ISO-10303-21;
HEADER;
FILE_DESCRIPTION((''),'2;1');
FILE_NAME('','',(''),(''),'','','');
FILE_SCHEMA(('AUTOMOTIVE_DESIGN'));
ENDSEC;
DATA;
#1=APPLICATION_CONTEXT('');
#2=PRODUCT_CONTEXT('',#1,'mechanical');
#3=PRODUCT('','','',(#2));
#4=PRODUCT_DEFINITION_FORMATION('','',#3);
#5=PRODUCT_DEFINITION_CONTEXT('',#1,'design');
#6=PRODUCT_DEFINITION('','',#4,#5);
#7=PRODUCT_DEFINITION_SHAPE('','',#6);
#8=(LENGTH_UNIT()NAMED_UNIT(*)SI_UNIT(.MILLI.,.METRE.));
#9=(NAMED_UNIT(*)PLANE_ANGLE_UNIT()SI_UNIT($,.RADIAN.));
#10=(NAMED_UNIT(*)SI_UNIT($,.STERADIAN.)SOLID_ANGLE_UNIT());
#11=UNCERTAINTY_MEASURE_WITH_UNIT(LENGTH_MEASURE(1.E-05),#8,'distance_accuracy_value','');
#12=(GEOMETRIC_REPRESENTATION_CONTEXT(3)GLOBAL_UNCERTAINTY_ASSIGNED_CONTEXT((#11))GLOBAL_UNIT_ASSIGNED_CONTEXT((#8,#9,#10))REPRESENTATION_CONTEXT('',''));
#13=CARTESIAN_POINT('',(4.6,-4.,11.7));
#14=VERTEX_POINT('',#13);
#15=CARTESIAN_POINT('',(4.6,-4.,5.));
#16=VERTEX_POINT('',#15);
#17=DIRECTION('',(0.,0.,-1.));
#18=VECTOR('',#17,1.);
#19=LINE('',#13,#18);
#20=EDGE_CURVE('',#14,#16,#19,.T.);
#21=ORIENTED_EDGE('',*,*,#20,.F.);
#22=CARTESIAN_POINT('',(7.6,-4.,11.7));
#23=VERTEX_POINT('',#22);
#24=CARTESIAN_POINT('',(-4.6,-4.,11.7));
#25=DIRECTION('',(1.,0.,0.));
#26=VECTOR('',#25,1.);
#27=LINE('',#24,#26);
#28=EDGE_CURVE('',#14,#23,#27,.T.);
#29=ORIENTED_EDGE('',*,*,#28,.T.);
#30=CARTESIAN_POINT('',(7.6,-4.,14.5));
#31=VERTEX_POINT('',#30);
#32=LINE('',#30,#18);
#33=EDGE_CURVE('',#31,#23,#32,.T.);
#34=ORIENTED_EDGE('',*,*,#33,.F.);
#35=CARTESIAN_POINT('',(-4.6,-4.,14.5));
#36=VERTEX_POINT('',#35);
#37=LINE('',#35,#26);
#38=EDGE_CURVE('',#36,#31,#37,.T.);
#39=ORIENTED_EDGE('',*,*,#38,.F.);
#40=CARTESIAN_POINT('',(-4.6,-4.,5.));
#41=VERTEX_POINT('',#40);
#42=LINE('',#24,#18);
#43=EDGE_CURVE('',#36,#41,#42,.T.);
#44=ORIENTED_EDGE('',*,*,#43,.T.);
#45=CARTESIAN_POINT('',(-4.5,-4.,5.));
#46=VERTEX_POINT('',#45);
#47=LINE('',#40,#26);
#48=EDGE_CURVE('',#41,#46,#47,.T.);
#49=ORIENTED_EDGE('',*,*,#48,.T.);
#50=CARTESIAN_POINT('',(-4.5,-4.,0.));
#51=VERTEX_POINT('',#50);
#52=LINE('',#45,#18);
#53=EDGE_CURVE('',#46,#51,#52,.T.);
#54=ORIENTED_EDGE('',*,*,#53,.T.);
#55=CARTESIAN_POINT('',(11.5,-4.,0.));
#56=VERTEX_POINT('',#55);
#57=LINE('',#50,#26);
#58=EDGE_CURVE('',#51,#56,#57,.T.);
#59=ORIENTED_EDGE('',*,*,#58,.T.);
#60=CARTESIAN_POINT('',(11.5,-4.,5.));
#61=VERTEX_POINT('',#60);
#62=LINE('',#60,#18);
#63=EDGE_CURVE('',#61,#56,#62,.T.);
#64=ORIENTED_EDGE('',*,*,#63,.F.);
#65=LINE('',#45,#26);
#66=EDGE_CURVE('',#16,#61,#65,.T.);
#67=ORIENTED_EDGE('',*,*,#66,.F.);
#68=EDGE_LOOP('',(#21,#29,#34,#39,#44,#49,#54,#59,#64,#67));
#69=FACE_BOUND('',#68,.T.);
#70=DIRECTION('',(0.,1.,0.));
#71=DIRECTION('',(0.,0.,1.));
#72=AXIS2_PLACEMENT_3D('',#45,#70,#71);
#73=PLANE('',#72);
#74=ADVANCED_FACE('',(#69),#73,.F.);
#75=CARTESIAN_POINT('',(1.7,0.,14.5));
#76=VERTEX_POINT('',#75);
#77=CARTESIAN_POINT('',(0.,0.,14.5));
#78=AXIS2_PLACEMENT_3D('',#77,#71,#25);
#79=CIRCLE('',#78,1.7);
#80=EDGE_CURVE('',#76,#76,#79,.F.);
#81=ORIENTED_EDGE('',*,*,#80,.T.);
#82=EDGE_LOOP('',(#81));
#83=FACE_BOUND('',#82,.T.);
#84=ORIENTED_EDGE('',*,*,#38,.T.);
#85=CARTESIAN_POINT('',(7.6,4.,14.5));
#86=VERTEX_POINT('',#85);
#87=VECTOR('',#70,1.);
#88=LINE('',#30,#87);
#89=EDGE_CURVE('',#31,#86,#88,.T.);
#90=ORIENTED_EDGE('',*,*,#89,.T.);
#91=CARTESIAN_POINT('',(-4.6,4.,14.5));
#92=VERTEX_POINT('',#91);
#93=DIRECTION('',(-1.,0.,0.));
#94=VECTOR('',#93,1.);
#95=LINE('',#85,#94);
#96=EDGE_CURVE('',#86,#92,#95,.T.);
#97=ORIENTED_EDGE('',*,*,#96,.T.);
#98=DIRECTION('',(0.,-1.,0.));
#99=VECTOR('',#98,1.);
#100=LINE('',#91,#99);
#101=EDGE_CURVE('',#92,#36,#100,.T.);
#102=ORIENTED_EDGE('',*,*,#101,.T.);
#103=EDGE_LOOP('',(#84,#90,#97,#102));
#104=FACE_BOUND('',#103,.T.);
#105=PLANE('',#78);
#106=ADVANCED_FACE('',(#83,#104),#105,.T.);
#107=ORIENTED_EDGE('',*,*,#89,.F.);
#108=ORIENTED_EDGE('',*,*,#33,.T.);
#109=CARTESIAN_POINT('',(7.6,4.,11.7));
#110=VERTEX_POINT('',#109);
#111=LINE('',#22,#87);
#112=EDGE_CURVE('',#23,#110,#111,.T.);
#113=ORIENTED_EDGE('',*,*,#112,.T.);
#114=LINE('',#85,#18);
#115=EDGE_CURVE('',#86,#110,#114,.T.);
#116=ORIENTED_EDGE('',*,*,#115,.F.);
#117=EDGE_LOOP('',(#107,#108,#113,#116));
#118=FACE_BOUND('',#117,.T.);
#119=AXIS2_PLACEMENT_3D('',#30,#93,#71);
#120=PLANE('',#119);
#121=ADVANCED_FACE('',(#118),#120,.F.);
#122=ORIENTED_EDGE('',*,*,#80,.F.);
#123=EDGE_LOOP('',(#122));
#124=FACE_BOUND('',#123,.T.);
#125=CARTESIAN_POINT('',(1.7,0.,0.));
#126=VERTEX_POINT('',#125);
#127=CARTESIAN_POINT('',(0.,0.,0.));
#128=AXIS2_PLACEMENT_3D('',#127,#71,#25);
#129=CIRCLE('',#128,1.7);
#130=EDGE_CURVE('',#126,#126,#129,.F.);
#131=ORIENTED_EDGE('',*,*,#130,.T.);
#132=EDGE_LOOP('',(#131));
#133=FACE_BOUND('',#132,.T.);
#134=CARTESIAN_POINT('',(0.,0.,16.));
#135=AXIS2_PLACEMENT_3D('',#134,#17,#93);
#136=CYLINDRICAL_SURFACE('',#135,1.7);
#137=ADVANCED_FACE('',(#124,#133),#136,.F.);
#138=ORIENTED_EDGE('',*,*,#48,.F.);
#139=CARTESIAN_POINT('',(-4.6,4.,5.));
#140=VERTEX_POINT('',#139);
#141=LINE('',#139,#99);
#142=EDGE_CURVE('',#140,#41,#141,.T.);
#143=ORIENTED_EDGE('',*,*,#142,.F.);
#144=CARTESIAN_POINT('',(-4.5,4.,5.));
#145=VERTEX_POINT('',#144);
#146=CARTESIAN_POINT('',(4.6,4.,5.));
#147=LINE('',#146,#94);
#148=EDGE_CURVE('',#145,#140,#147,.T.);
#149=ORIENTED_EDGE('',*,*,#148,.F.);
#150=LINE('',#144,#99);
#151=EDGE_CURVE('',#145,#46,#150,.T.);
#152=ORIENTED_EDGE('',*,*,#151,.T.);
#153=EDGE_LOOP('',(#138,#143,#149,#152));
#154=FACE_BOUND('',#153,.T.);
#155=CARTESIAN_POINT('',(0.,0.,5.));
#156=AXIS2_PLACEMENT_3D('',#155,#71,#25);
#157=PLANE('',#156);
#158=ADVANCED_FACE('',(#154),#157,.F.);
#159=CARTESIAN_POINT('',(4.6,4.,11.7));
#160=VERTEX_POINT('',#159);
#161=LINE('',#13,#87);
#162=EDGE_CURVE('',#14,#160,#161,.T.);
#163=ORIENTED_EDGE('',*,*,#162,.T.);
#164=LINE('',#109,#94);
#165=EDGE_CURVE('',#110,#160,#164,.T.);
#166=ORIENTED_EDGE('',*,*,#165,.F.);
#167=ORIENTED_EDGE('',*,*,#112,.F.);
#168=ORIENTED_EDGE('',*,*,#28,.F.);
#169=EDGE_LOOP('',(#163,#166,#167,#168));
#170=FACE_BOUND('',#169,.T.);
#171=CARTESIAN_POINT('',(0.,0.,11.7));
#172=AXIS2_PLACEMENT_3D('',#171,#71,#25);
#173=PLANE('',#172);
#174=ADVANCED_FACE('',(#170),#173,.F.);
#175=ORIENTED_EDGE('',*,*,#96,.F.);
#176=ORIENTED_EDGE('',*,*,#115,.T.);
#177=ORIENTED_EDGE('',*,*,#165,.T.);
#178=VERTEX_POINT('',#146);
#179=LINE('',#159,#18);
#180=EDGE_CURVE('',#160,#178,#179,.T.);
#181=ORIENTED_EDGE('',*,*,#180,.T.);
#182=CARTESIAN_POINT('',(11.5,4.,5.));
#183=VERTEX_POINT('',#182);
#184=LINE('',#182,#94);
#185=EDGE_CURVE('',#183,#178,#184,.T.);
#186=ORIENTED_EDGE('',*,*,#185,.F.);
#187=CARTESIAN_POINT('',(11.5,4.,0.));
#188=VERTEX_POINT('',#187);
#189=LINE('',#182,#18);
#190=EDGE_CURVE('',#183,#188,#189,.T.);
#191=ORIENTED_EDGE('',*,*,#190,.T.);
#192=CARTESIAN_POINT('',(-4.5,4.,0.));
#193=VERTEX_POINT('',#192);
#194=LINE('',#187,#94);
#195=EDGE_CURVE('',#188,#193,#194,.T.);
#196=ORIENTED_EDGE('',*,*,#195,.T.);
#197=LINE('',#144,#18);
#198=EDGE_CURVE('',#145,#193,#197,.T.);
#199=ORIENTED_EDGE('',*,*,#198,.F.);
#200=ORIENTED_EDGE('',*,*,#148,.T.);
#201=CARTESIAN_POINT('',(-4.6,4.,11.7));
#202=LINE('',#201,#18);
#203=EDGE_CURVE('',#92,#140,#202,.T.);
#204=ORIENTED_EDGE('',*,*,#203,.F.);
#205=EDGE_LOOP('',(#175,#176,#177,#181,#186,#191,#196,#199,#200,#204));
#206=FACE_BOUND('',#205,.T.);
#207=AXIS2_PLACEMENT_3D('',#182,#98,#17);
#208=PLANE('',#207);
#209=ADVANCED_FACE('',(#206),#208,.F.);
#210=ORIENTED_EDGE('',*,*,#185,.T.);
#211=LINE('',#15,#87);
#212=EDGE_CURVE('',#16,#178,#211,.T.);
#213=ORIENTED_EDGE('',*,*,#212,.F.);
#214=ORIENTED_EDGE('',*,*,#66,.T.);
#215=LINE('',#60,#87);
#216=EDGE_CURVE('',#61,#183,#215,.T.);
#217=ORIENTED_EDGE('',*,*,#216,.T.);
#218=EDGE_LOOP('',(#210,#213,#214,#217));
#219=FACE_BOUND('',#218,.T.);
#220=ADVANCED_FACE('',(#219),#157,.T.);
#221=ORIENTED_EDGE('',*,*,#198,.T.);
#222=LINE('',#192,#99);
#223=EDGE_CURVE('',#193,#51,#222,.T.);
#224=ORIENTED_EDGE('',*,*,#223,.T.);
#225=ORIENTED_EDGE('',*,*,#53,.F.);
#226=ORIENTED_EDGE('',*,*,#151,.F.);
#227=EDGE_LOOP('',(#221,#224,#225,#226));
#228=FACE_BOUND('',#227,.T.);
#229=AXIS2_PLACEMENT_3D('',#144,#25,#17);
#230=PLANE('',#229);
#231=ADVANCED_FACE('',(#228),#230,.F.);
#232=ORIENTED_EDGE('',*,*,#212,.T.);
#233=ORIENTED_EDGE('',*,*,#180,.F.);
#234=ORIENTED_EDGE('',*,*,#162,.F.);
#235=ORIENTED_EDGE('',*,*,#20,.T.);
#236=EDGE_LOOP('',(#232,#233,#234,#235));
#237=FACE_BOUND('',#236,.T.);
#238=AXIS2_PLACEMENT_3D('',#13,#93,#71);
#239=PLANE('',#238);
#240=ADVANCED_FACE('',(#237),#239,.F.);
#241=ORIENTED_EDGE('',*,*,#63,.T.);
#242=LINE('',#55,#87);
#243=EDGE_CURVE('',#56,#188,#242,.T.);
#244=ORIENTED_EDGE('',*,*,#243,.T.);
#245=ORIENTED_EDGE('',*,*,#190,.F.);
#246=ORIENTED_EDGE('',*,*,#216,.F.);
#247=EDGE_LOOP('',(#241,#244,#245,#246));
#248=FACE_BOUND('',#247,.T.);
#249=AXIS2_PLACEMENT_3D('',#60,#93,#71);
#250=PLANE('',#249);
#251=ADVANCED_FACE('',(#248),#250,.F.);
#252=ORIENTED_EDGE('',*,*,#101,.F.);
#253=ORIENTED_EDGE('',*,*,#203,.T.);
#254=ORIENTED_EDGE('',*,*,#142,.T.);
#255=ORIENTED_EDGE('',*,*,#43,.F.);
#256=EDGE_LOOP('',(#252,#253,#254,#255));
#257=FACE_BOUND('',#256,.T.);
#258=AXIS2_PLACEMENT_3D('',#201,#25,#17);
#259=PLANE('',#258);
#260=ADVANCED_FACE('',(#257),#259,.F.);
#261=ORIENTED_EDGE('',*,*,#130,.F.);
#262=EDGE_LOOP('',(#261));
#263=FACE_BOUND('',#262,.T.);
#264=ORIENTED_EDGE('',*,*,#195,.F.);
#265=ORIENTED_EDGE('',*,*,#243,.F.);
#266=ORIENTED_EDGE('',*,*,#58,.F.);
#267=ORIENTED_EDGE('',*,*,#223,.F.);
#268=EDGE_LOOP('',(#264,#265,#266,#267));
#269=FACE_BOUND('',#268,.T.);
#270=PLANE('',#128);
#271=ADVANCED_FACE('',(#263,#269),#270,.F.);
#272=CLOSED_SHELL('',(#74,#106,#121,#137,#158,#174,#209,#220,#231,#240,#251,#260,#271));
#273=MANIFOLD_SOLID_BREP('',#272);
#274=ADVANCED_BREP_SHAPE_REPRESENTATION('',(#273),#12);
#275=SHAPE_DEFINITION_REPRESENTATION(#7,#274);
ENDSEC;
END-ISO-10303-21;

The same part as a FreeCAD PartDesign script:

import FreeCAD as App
import Part
import Sketcher
from FreeCAD import Vector


def add_polygon(sketch, points):
    """Adds a closed chain of lines whose ends are joined by coincident constraints."""
    first, n = sketch.GeometryCount, len(points)
    for a, b in zip(points, points[1:] + points[:1]):
        sketch.addGeometry(Part.LineSegment(App.Vector(*a, 0), App.Vector(*b, 0)), False)
    for i in range(n):
        sketch.addConstraint(Sketcher.Constraint("Coincident", first + i, 2, first + (i + 1) % n, 1))

doc = App.newDocument("Part")
body = doc.addObject("PartDesign::Body", "Body")

# Sketch on XY plane
sketch1 = body.newObject("Sketcher::SketchObject", "Sketch")
sketch1.AttachmentSupport = (doc.getObject("XY_Plane"), [""])
sketch1.MapMode = "FlatFace"
add_polygon(sketch1, [(-4, 4), (-4, -4), (12, -4), (12, 4)])  # lines 0-3
sketch1.addConstraint([
    Sketcher.Constraint("Vertical", 0),
    Sketcher.Constraint("Horizontal", 1),
    Sketcher.Constraint("Vertical", 2),
    Sketcher.Constraint("Horizontal", 3),
    Sketcher.Constraint("DistanceX", 1, 1, 1, 2, 16.0),
    Sketcher.Constraint("DistanceY", 0, 2, 0, 1, 8.0),
    Sketcher.Constraint("DistanceY", 0, 2, -1, 1, 4.0),
    Sketcher.Constraint("DistanceX", 0, 2, -1, 1, 4.5),
])
pad1 = body.newObject("PartDesign::Pad", "Pad")
pad1.Profile = sketch1
pad1.Length = 5

# Sketch on XY plane
sketch2 = body.newObject("Sketcher::SketchObject", "Sketch001")
sketch2.AttachmentSupport = (doc.getObject("XY_Plane"), [""])
sketch2.MapMode = "FlatFace"
sketch2.AttachmentOffset = App.Placement(Vector(0, 0, 5), App.Rotation())
add_polygon(sketch2, [(-5, 4), (-5, -4), (5, -4), (5, 4)])  # lines 0-3
sketch2.addConstraint([
    Sketcher.Constraint("Vertical", 0),
    Sketcher.Constraint("Horizontal", 1),
    Sketcher.Constraint("Vertical", 2),
    Sketcher.Constraint("Horizontal", 3),
    Sketcher.Constraint("Symmetric", 0, 2, 2, 2, -1, 1),
    Sketcher.Constraint("DistanceY", 0, 2, 0, 1, 8.0),
    Sketcher.Constraint("DistanceX", 1, 1, 1, 2, 9.2),
])
pad2 = body.newObject("PartDesign::Pad", "Pad001")
pad2.Profile = sketch2
pad2.Length = 6.7

# Sketch on XY plane
sketch3 = body.newObject("Sketcher::SketchObject", "Sketch002")
sketch3.AttachmentSupport = (doc.getObject("XY_Plane"), [""])
sketch3.MapMode = "FlatFace"
sketch3.AttachmentOffset = App.Placement(Vector(0, 0, 11.7), App.Rotation())
add_polygon(sketch3, [(-5, 4), (-5, -4), (8, -4), (8, 4)])  # lines 0-3
sketch3.addConstraint([
    Sketcher.Constraint("Vertical", 0),
    Sketcher.Constraint("Horizontal", 1),
    Sketcher.Constraint("Vertical", 2),
    Sketcher.Constraint("Horizontal", 3),
    Sketcher.Constraint("DistanceY", 0, 2, 0, 1, 8.0),
    Sketcher.Constraint("DistanceX", 1, 1, 1, 2, 12.2),
    Sketcher.Constraint("DistanceY", 0, 2, -1, 1, 4.0),
    Sketcher.Constraint("DistanceX", 0, 2, -1, 1, 4.6),
])
pad3 = body.newObject("PartDesign::Pad", "Pad002")
pad3.Profile = sketch3
pad3.Length = 2.8

# Sketch on XY plane
sketch4 = body.newObject("Sketcher::SketchObject", "Sketch003")
sketch4.AttachmentSupport = (doc.getObject("XY_Plane"), [""])
sketch4.MapMode = "FlatFace"
sketch4.AttachmentOffset = App.Placement(Vector(0, 0, -1), App.Rotation())
sketch4.addGeometry(Part.Circle(Vector(0, 0, 0), Vector(0, 0, 1), 1.7), False)
sketch4.addConstraint([
    Sketcher.Constraint("Coincident", 0, 3, -1, 1),
    Sketcher.Constraint("Diameter", 0, 3.4),
])
pocket1 = body.newObject("PartDesign::Pocket", "Pocket")
pocket1.Profile = sketch4
pocket1.Length = 17
pocket1.Reversed = True

doc.recompute()
